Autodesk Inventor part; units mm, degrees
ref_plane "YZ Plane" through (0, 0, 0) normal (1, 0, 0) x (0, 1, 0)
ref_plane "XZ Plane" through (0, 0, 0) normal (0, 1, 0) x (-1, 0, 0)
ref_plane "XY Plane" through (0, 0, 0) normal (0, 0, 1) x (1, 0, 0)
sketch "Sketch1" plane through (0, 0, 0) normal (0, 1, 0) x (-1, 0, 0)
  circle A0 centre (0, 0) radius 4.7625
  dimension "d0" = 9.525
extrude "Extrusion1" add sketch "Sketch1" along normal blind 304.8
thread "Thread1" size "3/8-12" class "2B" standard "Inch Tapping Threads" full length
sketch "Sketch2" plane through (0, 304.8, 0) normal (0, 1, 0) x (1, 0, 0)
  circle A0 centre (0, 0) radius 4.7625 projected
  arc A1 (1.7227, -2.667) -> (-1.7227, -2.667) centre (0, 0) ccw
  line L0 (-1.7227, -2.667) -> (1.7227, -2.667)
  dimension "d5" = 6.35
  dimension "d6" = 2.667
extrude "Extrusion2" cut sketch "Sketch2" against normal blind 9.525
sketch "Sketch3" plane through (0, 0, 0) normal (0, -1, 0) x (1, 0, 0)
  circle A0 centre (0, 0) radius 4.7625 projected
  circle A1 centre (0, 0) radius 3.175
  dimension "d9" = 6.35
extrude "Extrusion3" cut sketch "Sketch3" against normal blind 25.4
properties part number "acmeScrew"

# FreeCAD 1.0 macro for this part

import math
import FreeCAD as App
import Part
import Sketcher
Q = App.Units.Quantity

doc = App.newDocument("Part")
body = doc.addObject("PartDesign::Body", "Body")

# Sketch on XZ plane
sketch1 = body.newObject("Sketcher::SketchObject", "Sketch")
sketch1.AttachmentSupport = (doc.getObject("XZ_Plane"), [""])
sketch1.MapMode = "FlatFace"
sketch1.addGeometry(Part.Circle(App.Vector(0, 0, 0), App.Vector(0, 0, 1), 4.8), False)
sketch1.addConstraint(Sketcher.Constraint("Coincident", 0, 3, -1, 1))
sketch1.addConstraint(Sketcher.Constraint("Diameter", 0, Q("0.375 in")))
pad1 = body.newObject("PartDesign::Pad", "Pad")
pad1.Profile = sketch1
pad1.Length = Q("12 in")
pad1.Reversed = True

# Sketch on XZ plane
sketch2 = body.newObject("Sketcher::SketchObject", "Sketch001")
sketch2.AttachmentSupport = (doc.getObject("XZ_Plane"), [""])
sketch2.MapMode = "FlatFace"
sketch2.AttachmentOffset = App.Placement(App.Vector(0, 0, -12 * 25.4), App.Rotation())
sketch2.addGeometry(Part.Circle(App.Vector(0, 0, 0), App.Vector(0, 0, 1), 4.8), False)
sketch2.addGeometry(Part.ArcOfCircle(Part.Circle(App.Vector(0, 0, 0), App.Vector(0, 0, 1), 3.2), math.radians(123), math.radians(417)), False)
sketch2.addGeometry(Part.LineSegment(App.Vector(1.7, 2.7, 0), App.Vector(-1.7, 2.7, 0)), False)
sketch2.addConstraint(Sketcher.Constraint("Coincident", 1, 1, 2, 2))
sketch2.addConstraint(Sketcher.Constraint("Coincident", 2, 1, 1, 2))
sketch2.addConstraint(Sketcher.Constraint("Horizontal", 2))
sketch2.addConstraint(Sketcher.Constraint("Coincident", 0, 3, -1, 1))
sketch2.addConstraint(Sketcher.Constraint("Coincident", 1, 3, -1, 1))
sketch2.addConstraint(Sketcher.Constraint("Radius", 1, Q("0.125 in")))
sketch2.addConstraint(Sketcher.Constraint("Diameter", 0, Q("0.375 in")))
sketch2.addConstraint(Sketcher.Constraint("DistanceY", -1, 1, 1, 1, Q("0.105 in")))
pocket1 = body.newObject("PartDesign::Pocket", "Pocket")
pocket1.Profile = sketch2
pocket1.Length = Q("0.375 in")
pocket1.Reversed = True

# Sketch on XZ plane
sketch3 = body.newObject("Sketcher::SketchObject", "Sketch002")
sketch3.AttachmentSupport = (doc.getObject("XZ_Plane"), [""])
sketch3.MapMode = "FlatFace"
sketch3.addGeometry(Part.Circle(App.Vector(0, 0, 0), App.Vector(0, 0, 1), 4.8), False)
sketch3.addGeometry(Part.Circle(App.Vector(0, 0, 0), App.Vector(0, 0, 1), 3.2), False)
sketch3.addConstraint(Sketcher.Constraint("Coincident", 0, 3, -1, 1))
sketch3.addConstraint(Sketcher.Constraint("Coincident", 1, 3, -1, 1))
sketch3.addConstraint(Sketcher.Constraint("Diameter", 1, Q("0.25 in")))
sketch3.addConstraint(Sketcher.Constraint("Diameter", 0, Q("0.375 in")))
pocket2 = body.newObject("PartDesign::Pocket", "Pocket001")
pocket2.Profile = sketch3
pocket2.Length = Q("1 in")

doc.recompute()
